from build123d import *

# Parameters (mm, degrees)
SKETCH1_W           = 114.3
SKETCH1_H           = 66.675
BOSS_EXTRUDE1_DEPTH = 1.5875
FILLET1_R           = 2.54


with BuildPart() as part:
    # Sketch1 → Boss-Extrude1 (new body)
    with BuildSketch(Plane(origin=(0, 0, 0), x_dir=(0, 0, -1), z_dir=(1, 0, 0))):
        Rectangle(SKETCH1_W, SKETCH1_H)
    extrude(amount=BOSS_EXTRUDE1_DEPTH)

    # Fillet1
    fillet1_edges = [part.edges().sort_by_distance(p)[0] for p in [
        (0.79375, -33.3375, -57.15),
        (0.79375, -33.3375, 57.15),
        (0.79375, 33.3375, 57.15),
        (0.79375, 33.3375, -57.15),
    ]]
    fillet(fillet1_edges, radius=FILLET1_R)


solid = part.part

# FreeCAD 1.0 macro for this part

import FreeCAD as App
import Part
import Sketcher

V = App.Vector
Q = App.Units.Quantity


def edges_at(feature, points):
    """Names of the edges that pass closest to the given points."""
    edges = feature.Shape.Edges
    near = lambda p: min(range(len(edges)), key=lambda i: edges[i].distToShape(Part.Vertex(*p))[0])
    return sorted({f"Edge{near(p) + 1}" for p in points})

doc = App.newDocument("Part")
body = doc.addObject("PartDesign::Body", "Body")

# Sketch on YZ plane
sketch1 = body.newObject("Sketcher::SketchObject", "Sketch")
sketch1.AttachmentSupport = (doc.getObject("YZ_Plane"), [""])
sketch1.MapMode = "FlatFace"
sketch1.addGeometry([
    Part.LineSegment(V(33, 57, 0), V(-33, 57, 0)),
    Part.LineSegment(V(-33, 57, 0), V(-33, -57, 0)),
    Part.LineSegment(V(-33, -57, 0), V(33, -57, 0)),
    Part.LineSegment(V(33, -57, 0), V(33, 57, 0)),
], False)
sketch1.addConstraint([
    Sketcher.Constraint("Coincident", 0, 2, 1, 1),
    Sketcher.Constraint("Coincident", 1, 2, 2, 1),
    Sketcher.Constraint("Coincident", 2, 2, 3, 1),
    Sketcher.Constraint("Coincident", 3, 2, 0, 1),
    Sketcher.Constraint("Horizontal", 0),
    Sketcher.Constraint("Vertical", 1),
    Sketcher.Constraint("Horizontal", 2),
    Sketcher.Constraint("Vertical", 3),
    Sketcher.Constraint("Symmetric", 0, 2, 2, 2, -1, 1),
    Sketcher.Constraint("DistanceY", 1, 2, 1, 1, Q("4.5 in")),
    Sketcher.Constraint("DistanceX", 0, 2, 0, 1, Q("2.625 in")),
])
pad1 = body.newObject("PartDesign::Pad", "Pad")
pad1.Profile = sketch1
pad1.Length = Q("0.0625 in")
doc.recompute()

fillet = body.newObject("PartDesign::Fillet", "Fillet")
fillet.Base = (pad1, edges_at(pad1, [
    (0.794, -33.337, -57.15),
    (0.794, -33.337, 57.15),
    (0.794, 33.337, 57.15),
    (0.794, 33.337, -57.15),
]))
fillet.Radius = Q("0.1 in")

doc.recompute()
